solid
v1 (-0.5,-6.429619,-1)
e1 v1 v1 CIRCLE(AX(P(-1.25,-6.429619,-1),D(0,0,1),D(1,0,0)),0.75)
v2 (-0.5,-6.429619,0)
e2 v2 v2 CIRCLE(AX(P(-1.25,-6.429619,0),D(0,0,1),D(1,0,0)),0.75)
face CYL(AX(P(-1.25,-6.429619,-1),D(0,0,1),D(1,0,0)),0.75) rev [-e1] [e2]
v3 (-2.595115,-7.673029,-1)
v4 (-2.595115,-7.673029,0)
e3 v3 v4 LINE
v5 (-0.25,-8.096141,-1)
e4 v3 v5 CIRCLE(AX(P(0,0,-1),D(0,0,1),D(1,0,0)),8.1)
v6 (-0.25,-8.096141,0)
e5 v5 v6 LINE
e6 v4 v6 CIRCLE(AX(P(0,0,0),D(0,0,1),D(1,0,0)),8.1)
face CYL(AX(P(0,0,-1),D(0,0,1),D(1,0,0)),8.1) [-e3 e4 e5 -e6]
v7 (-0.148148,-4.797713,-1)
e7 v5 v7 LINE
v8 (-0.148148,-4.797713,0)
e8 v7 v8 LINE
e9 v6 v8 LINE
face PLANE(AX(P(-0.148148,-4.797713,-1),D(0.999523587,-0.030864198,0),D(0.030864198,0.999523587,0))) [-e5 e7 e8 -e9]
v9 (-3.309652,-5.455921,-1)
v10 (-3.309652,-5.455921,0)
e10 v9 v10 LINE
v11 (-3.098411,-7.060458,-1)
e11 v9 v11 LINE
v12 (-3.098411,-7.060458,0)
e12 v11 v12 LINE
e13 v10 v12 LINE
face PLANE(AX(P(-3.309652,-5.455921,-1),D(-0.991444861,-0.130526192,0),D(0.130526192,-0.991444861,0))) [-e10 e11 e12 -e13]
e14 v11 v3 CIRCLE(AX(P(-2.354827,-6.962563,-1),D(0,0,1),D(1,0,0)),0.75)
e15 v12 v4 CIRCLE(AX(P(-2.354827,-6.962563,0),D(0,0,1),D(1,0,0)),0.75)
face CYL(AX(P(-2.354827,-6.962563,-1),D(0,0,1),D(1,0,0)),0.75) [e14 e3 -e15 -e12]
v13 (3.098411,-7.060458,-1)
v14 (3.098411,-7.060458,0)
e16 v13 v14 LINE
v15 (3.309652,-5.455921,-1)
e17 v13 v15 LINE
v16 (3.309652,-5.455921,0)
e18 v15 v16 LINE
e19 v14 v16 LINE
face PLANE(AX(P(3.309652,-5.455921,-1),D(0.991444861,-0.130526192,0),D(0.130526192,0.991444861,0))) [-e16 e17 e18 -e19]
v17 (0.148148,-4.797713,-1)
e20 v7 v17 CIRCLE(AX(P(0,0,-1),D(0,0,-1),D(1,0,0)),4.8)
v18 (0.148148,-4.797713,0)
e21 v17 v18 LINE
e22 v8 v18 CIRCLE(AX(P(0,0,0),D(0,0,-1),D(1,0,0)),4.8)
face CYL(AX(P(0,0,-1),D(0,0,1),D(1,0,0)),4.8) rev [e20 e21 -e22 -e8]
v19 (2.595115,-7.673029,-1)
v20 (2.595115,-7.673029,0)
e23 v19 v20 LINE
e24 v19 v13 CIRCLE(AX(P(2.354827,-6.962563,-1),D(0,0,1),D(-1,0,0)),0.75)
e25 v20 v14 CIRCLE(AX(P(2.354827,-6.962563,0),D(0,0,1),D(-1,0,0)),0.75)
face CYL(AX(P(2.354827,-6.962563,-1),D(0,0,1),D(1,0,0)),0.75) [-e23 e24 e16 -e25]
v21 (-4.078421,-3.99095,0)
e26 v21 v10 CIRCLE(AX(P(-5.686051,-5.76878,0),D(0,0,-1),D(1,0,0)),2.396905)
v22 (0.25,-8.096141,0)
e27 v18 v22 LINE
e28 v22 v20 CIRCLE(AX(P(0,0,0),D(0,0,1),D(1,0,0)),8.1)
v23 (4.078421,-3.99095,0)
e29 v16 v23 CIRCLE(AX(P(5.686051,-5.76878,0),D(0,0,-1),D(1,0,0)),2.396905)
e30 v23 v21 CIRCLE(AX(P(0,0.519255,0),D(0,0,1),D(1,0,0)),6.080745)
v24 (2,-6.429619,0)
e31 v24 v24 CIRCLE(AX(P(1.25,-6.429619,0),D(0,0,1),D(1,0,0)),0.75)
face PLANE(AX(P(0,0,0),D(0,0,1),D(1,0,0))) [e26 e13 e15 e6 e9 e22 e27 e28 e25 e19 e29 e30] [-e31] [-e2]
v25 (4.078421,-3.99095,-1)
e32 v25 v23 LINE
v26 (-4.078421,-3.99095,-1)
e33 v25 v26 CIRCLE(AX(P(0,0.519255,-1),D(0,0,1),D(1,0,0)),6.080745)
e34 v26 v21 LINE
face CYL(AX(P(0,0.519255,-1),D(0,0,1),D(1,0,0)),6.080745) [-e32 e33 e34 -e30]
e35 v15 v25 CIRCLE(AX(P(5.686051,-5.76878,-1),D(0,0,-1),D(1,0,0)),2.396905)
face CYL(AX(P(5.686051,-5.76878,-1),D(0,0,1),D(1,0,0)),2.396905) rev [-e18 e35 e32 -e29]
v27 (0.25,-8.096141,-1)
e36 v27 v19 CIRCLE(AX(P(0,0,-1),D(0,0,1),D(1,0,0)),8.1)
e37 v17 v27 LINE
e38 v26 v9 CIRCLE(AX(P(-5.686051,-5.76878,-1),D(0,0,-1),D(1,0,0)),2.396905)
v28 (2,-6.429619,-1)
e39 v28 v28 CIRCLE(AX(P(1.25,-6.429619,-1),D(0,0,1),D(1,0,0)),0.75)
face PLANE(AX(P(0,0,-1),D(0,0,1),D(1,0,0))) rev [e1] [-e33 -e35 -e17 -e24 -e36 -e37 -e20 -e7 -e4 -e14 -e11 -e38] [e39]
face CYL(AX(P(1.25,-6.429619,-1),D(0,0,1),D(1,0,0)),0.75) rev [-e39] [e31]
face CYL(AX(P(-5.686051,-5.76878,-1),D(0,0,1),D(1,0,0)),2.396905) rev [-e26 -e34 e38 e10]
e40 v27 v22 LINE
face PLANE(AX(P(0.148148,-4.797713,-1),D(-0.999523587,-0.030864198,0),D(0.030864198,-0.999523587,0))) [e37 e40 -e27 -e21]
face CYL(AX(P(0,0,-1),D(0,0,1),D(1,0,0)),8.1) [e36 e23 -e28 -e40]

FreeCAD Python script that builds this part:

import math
import FreeCAD as App
import Part
import Sketcher
Q = App.Units.Quantity

doc = App.newDocument("Part")
body = doc.addObject("PartDesign::Body", "Body")

sketch1 = body.newObject("Sketcher::SketchObject", "Sketch")
sketch1.AttachmentSupport = (doc.getObject("XY_Plane"), [""])
sketch1.MapMode = "FlatFace"
sketch1.addGeometry([
    Part.LineSegment(App.Vector(0.148148, -4.797713, 0), App.Vector(0.25, -8.096141, 0)),
    Part.ArcOfCircle(Part.Circle(App.Vector(0, 0, 0), App.Vector(0, 0, 1), 8.1), math.radians(-88.231331), math.radians(-71.313814)),
    Part.ArcOfCircle(Part.Circle(App.Vector(2.354827, -6.962563, 0), App.Vector(0, 0, 1), 0.75), math.radians(-71.313814), math.radians(-7.5)),
    Part.LineSegment(App.Vector(3.098411, -7.060458, 0), App.Vector(3.309652, -5.455921, 0)),
    Part.ArcOfCircle(Part.Circle(App.Vector(5.686051, -5.76878, 0), App.Vector(0, 0, 1), 2.396905), math.radians(132.121941), math.radians(172.5)),
    Part.ArcOfCircle(Part.Circle(App.Vector(0, 0.519255, 0), App.Vector(0, 0, 1), 6.080745), math.radians(-47.878059), math.radians(227.878059)),
    Part.ArcOfCircle(Part.Circle(App.Vector(-5.686051, -5.76878, 0), App.Vector(0, 0, 1), 2.396905), math.radians(7.5), math.radians(47.878059)),
    Part.LineSegment(App.Vector(-3.309652, -5.455921, 0), App.Vector(-3.098411, -7.060458, 0)),
    Part.ArcOfCircle(Part.Circle(App.Vector(-2.354827, -6.962563, 0), App.Vector(0, 0, 1), 0.75), math.radians(-172.5), math.radians(-108.686186)),
    Part.ArcOfCircle(Part.Circle(App.Vector(0, 0, 0), App.Vector(0, 0, 1), 8.1), math.radians(-108.686186), math.radians(-91.768669)),
    Part.LineSegment(App.Vector(-0.25, -8.096141, 0), App.Vector(-0.148148, -4.797713, 0)),
    Part.ArcOfCircle(Part.Circle(App.Vector(0, 0, 0), App.Vector(0, 0, 1), 4.8), math.radians(-88.231331), math.radians(268.231331)),
    Part.Circle(App.Vector(-1.25, -6.429619, 0), App.Vector(0, 0, 1), 0.75),
    Part.Circle(App.Vector(1.25, -6.429619, 0), App.Vector(0, 0, 1), 0.75),
], False)
sketch1.addConstraint([
    Sketcher.Constraint("Coincident", 0, 2, 1, 1),
    Sketcher.Constraint("Tangent", 1, 2, 2, 1),
    Sketcher.Constraint("Tangent", 2, 2, 3, 1),
    Sketcher.Constraint("Tangent", 3, 2, 4, 2),
    Sketcher.Constraint("Tangent", 4, 1, 5, 1),
    Sketcher.Constraint("Tangent", 5, 2, 6, 2),
    Sketcher.Constraint("Tangent", 6, 1, 7, 1),
    Sketcher.Constraint("Tangent", 7, 2, 8, 1),
    Sketcher.Constraint("Tangent", 8, 2, 9, 1),
    Sketcher.Constraint("Coincident", 9, 2, 10, 1),
    Sketcher.Constraint("Coincident", 10, 2, 11, 2),
    Sketcher.Constraint("Coincident", 11, 1, 0, 1),
    Sketcher.Constraint("Coincident", 1, 3, -1, 1),
    Sketcher.Constraint("Coincident", 9, 3, -1, 1),
    Sketcher.Constraint("Coincident", 11, 3, -1, 1),
    Sketcher.Constraint("Equal", 4, 6),
    Sketcher.Constraint("Equal", 2, 8),
    Sketcher.Constraint("Equal", 1, 9),
    Sketcher.Constraint("Equal", 8, 12),
    Sketcher.Constraint("Equal", 12, 13),
    Sketcher.Constraint("Symmetric", 4, 3, 6, 3, -2),
    Sketcher.Constraint("Symmetric", 12, 3, 13, 3, -2),
    Sketcher.Constraint("Horizontal", 2, 3, 8, 3),
    Sketcher.Constraint("Horizontal", 0, 2, 9, 2),
    Sketcher.Constraint("Horizontal", 10, 2, 11, 1),
    Sketcher.Constraint("Diameter", 12, 1.5),
    Sketcher.Constraint("Radius", 1, 8.1),
    Sketcher.Constraint("Radius", 11, 4.8),
    Sketcher.Constraint("Angle", 3, Q("82.5 deg")),
    Sketcher.Constraint("DistanceX", 0, 2, 13, 3, 1.0),
    Sketcher.Constraint("DistanceX", 12, 3, 13, 3, 2.5),
    Sketcher.Constraint("Radius", 4, 2.396905),
    Sketcher.Constraint("Radius", 5, 6.080745),
    Sketcher.Constraint("DistanceX", 6, 3, 4, 3, 11.372102),
    Sketcher.Constraint("DistanceY", 4, 3, -1, 1, 5.76878),
    Sketcher.Constraint("DistanceY", 12, 3, -1, 1, 6.429619),
    Sketcher.Constraint("DistanceX", 10, 2, -1, 1, 0.148148),
])
pad1 = body.newObject("PartDesign::Pad", "Pad")
pad1.Profile = sketch1
pad1.Length = 1
pad1.Reversed = True

doc.recompute()
